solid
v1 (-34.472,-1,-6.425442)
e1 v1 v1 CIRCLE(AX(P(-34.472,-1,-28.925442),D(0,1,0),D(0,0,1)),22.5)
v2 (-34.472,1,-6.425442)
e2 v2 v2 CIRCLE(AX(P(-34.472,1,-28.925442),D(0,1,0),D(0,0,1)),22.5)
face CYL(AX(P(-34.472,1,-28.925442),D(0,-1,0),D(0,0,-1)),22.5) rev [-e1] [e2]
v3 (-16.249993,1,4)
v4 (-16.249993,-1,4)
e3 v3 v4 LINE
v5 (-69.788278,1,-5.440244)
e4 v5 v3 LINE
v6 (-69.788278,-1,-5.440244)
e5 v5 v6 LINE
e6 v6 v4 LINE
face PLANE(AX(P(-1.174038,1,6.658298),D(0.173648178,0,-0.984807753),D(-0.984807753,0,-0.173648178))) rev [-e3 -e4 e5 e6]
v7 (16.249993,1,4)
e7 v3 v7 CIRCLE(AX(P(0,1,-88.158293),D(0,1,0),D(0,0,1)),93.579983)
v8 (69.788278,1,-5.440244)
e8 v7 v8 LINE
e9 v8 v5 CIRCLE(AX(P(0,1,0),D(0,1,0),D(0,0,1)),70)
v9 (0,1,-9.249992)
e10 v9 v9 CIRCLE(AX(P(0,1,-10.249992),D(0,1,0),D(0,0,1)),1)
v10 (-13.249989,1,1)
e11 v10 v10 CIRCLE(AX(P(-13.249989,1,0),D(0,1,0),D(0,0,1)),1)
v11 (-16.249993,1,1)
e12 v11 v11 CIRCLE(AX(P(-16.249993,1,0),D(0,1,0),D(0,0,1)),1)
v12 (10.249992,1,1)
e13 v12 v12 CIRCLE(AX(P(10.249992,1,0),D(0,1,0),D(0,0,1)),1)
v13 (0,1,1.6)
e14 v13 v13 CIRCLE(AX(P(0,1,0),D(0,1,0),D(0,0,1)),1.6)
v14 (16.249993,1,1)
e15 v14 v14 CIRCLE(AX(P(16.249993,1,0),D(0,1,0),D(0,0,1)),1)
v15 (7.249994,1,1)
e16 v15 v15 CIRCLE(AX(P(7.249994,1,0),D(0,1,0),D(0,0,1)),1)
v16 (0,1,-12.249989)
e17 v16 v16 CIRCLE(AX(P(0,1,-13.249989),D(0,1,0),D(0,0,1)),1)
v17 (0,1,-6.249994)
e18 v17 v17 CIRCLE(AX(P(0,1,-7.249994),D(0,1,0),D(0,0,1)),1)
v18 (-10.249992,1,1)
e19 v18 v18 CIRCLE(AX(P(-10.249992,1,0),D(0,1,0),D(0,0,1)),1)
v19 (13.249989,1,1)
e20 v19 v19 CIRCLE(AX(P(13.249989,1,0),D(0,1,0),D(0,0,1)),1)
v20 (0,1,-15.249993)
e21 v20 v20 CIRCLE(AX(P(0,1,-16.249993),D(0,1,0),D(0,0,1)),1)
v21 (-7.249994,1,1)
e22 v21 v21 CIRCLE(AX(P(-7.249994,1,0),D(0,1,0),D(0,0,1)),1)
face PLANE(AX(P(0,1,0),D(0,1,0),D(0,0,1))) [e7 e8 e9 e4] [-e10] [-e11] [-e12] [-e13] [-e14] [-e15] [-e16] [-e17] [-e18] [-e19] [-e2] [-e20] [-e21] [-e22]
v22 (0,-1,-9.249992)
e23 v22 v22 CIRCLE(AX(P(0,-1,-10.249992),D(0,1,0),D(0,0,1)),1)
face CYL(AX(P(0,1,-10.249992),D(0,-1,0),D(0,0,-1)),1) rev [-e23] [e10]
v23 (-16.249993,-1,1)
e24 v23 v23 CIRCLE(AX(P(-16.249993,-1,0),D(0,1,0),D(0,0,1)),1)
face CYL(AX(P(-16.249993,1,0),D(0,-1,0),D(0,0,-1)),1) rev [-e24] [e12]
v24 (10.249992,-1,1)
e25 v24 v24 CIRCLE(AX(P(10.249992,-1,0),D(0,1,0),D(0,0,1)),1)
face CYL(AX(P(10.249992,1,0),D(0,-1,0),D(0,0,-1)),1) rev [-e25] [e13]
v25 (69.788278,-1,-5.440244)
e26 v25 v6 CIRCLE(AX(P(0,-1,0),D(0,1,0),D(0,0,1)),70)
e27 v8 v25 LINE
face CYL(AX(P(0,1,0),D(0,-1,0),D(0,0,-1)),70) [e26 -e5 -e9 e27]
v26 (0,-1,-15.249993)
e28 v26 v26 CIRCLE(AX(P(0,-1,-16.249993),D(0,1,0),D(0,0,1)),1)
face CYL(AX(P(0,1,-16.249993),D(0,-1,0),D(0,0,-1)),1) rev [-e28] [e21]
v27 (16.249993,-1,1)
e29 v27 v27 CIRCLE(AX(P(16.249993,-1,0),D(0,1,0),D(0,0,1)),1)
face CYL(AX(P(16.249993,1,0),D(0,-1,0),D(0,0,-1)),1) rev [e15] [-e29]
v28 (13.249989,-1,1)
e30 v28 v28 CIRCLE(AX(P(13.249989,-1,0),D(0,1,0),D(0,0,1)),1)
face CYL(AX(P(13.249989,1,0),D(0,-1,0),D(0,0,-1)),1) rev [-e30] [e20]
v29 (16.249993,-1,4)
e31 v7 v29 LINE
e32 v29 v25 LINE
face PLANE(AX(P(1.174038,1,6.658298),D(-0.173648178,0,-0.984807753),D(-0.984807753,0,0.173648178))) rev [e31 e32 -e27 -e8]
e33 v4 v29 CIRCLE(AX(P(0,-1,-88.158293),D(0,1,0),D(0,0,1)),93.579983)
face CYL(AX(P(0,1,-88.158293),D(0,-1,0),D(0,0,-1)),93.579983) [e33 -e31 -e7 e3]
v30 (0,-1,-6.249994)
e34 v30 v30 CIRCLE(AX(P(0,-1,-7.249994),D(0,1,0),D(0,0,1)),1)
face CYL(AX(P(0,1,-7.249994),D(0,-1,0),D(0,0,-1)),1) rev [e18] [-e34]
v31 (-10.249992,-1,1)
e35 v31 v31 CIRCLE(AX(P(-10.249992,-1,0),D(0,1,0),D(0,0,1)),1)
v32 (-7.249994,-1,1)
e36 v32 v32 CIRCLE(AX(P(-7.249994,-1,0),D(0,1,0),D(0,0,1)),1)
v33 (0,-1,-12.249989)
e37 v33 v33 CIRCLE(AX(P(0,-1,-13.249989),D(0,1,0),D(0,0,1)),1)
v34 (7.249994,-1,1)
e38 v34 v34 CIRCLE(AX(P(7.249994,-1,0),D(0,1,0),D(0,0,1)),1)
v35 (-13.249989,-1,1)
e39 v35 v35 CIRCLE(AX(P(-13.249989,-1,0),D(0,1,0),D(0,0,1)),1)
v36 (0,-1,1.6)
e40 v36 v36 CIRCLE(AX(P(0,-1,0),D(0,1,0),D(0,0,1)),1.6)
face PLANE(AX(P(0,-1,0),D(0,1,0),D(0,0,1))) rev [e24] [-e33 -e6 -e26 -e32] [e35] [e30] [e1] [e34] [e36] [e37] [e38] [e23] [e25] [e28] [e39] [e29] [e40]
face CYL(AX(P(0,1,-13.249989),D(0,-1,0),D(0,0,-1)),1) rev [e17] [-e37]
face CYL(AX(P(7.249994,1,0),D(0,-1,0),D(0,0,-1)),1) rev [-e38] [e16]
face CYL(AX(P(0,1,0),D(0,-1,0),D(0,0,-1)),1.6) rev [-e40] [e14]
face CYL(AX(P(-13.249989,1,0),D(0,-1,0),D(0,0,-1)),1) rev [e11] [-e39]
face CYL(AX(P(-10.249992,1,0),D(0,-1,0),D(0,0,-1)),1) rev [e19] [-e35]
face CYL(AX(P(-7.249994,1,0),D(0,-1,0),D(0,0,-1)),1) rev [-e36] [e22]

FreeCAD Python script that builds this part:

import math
import FreeCAD as App
import Part
import Sketcher
from FreeCAD import Vector
Q = App.Units.Quantity

doc = App.newDocument("Part")
body = doc.addObject("PartDesign::Body", "Body")

# Sketch on XZ plane
sketch1 = body.newObject("Sketcher::SketchObject", "Sketch")
sketch1.AttachmentSupport = (doc.getObject("XZ_Plane"), [""])
sketch1.MapMode = "FlatFace"
sketch1.addGeometry(Part.LineSegment(Vector(-69.8, -5.4, 0), Vector(-16.2, 4, 0)), False)
sketch1.addGeometry(Part.ArcOfCircle(Part.Circle(Vector(0, -88.2, 0), Vector(0, 0, 1), 93.6), math.radians(80), math.radians(100)), False)
sketch1.addGeometry(Part.LineSegment(Vector(16.2, 4, 0), Vector(69.8, -5.4, 0)), False)
sketch1.addGeometry(Part.ArcOfCircle(Part.Circle(Vector(0, 0, 0), Vector(0, 0, 1), 70), math.radians(-176), math.radians(-4)), False)
sketch1.addGeometry(Part.Circle(Vector(-16.2, 0, 0), Vector(0, 0, 1), 1), False)
sketch1.addGeometry(Part.Circle(Vector(-13.2, 0, 0), Vector(0, 0, 1), 1), False)
sketch1.addGeometry(Part.Circle(Vector(-10.2, 0, 0), Vector(0, 0, 1), 1), False)
sketch1.addGeometry(Part.Circle(Vector(-7.2, 0, 0), Vector(0, 0, 1), 1), False)
sketch1.addGeometry(Part.Circle(Vector(0, 0, 0), Vector(0, 0, 1), 1.6), False)
sketch1.addGeometry(Part.Circle(Vector(7.2, 0, 0), Vector(0, 0, 1), 1), False)
sketch1.addGeometry(Part.Circle(Vector(10.2, 0, 0), Vector(0, 0, 1), 1), False)
sketch1.addGeometry(Part.Circle(Vector(13.2, 0, 0), Vector(0, 0, 1), 1), False)
sketch1.addGeometry(Part.Circle(Vector(16.2, 0, 0), Vector(0, 0, 1), 1), False)
sketch1.addGeometry(Part.Circle(Vector(0, -7.2, 0), Vector(0, 0, 1), 1), False)
sketch1.addGeometry(Part.Circle(Vector(0, -10.2, 0), Vector(0, 0, 1), 1), False)
sketch1.addGeometry(Part.Circle(Vector(0, -13.2, 0), Vector(0, 0, 1), 1), False)
sketch1.addGeometry(Part.Circle(Vector(0, -16.2, 0), Vector(0, 0, 1), 1), False)
sketch1.addGeometry(Part.Circle(Vector(-34.5, -28.9, 0), Vector(0, 0, 1), 22.5), False)
sketch1.addConstraint(Sketcher.Constraint("Tangent", 0, 2, 1, 2))
sketch1.addConstraint(Sketcher.Constraint("Tangent", 1, 1, 2, 1))
sketch1.addConstraint(Sketcher.Constraint("Coincident", 2, 2, 3, 2))
sketch1.addConstraint(Sketcher.Constraint("Coincident", 3, 1, 0, 1))
sketch1.addConstraint(Sketcher.Constraint("Coincident", 3, 3, -1, 1))
sketch1.addConstraint(Sketcher.Constraint("Coincident", 8, 3, -1, 1))
sketch1.addConstraint(Sketcher.Constraint("Equal", 4, 5))
sketch1.addConstraint(Sketcher.Constraint("Equal", 5, 6))
sketch1.addConstraint(Sketcher.Constraint("Equal", 6, 7))
sketch1.addConstraint(Sketcher.Constraint("Equal", 7, 9))
sketch1.addConstraint(Sketcher.Constraint("Equal", 9, 10))
sketch1.addConstraint(Sketcher.Constraint("Equal", 10, 11))
sketch1.addConstraint(Sketcher.Constraint("Equal", 11, 12))
sketch1.addConstraint(Sketcher.Constraint("Equal", 12, 13))
sketch1.addConstraint(Sketcher.Constraint("Equal", 13, 14))
sketch1.addConstraint(Sketcher.Constraint("Equal", 14, 15))
sketch1.addConstraint(Sketcher.Constraint("Equal", 15, 16))
sketch1.addConstraint(Sketcher.Constraint("Symmetric", 7, 3, 9, 3, -1, 1))
sketch1.addConstraint(Sketcher.Constraint("Symmetric", 6, 3, 10, 3, -1, 1))
sketch1.addConstraint(Sketcher.Constraint("Symmetric", 5, 3, 11, 3, -1, 1))
sketch1.addConstraint(Sketcher.Constraint("Symmetric", 4, 3, 12, 3, -1, 1))
sketch1.addConstraint(Sketcher.Constraint("Symmetric", 0, 2, 1, 1, -2))
sketch1.addConstraint(Sketcher.Constraint("PointOnObject", 4, 3, -1))
sketch1.addConstraint(Sketcher.Constraint("PointOnObject", 5, 3, -1))
sketch1.addConstraint(Sketcher.Constraint("PointOnObject", 6, 3, -1))
sketch1.addConstraint(Sketcher.Constraint("PointOnObject", 7, 3, -1))
sketch1.addConstraint(Sketcher.Constraint("PointOnObject", 13, 3, -2))
sketch1.addConstraint(Sketcher.Constraint("PointOnObject", 14, 3, -2))
sketch1.addConstraint(Sketcher.Constraint("PointOnObject", 15, 3, -2))
sketch1.addConstraint(Sketcher.Constraint("PointOnObject", 16, 3, -2))
sketch1.addConstraint(Sketcher.Constraint("Vertical", 4, 3, 0, 2))
sketch1.addConstraint(Sketcher.Constraint("Diameter", 4, 2.0))
sketch1.addConstraint(Sketcher.Constraint("Diameter", 17, 45.0))
sketch1.addConstraint(Sketcher.Constraint("Radius", 3, 70.0))
sketch1.addConstraint(Sketcher.Constraint("Diameter", 8, 3.2))
sketch1.addConstraint(Sketcher.Constraint("Angle", 0, Q("10 deg")))
sketch1.addConstraint(Sketcher.Constraint("DistanceY", -1, 1, 0, 2, 4.0))
sketch1.addConstraint(Sketcher.Constraint("DistanceX", 4, 3, 6, 3, 6.000002))
sketch1.addConstraint(Sketcher.Constraint("DistanceX", 4, 3, 7, 3, 8.999999))
sketch1.addConstraint(Sketcher.Constraint("DistanceY", 16, 3, 14, 3, 6.000002))
sketch1.addConstraint(Sketcher.Constraint("DistanceY", 16, 3, 13, 3, 8.999999))
sketch1.addConstraint(Sketcher.Constraint("DistanceX", 17, 3, -1, 1, 34.472))
sketch1.addConstraint(Sketcher.Constraint("Radius", 1, 93.579983))
sketch1.addConstraint(Sketcher.Constraint("DistanceY", 17, 3, 3, 1, 23.485198))
sketch1.addConstraint(Sketcher.Constraint("DistanceX", 5, 3, -1, 1, 13.249989))
sketch1.addConstraint(Sketcher.Constraint("DistanceY", 14, 3, -1, 1, 10.249992))
sketch1.addConstraint(Sketcher.Constraint("DistanceY", 15, 3, -1, 1, 13.249989))
pad1 = body.newObject("PartDesign::Pad", "Pad")
pad1.Profile = sketch1
pad1.Length = 2
pad1.Midplane = True

doc.recompute()
